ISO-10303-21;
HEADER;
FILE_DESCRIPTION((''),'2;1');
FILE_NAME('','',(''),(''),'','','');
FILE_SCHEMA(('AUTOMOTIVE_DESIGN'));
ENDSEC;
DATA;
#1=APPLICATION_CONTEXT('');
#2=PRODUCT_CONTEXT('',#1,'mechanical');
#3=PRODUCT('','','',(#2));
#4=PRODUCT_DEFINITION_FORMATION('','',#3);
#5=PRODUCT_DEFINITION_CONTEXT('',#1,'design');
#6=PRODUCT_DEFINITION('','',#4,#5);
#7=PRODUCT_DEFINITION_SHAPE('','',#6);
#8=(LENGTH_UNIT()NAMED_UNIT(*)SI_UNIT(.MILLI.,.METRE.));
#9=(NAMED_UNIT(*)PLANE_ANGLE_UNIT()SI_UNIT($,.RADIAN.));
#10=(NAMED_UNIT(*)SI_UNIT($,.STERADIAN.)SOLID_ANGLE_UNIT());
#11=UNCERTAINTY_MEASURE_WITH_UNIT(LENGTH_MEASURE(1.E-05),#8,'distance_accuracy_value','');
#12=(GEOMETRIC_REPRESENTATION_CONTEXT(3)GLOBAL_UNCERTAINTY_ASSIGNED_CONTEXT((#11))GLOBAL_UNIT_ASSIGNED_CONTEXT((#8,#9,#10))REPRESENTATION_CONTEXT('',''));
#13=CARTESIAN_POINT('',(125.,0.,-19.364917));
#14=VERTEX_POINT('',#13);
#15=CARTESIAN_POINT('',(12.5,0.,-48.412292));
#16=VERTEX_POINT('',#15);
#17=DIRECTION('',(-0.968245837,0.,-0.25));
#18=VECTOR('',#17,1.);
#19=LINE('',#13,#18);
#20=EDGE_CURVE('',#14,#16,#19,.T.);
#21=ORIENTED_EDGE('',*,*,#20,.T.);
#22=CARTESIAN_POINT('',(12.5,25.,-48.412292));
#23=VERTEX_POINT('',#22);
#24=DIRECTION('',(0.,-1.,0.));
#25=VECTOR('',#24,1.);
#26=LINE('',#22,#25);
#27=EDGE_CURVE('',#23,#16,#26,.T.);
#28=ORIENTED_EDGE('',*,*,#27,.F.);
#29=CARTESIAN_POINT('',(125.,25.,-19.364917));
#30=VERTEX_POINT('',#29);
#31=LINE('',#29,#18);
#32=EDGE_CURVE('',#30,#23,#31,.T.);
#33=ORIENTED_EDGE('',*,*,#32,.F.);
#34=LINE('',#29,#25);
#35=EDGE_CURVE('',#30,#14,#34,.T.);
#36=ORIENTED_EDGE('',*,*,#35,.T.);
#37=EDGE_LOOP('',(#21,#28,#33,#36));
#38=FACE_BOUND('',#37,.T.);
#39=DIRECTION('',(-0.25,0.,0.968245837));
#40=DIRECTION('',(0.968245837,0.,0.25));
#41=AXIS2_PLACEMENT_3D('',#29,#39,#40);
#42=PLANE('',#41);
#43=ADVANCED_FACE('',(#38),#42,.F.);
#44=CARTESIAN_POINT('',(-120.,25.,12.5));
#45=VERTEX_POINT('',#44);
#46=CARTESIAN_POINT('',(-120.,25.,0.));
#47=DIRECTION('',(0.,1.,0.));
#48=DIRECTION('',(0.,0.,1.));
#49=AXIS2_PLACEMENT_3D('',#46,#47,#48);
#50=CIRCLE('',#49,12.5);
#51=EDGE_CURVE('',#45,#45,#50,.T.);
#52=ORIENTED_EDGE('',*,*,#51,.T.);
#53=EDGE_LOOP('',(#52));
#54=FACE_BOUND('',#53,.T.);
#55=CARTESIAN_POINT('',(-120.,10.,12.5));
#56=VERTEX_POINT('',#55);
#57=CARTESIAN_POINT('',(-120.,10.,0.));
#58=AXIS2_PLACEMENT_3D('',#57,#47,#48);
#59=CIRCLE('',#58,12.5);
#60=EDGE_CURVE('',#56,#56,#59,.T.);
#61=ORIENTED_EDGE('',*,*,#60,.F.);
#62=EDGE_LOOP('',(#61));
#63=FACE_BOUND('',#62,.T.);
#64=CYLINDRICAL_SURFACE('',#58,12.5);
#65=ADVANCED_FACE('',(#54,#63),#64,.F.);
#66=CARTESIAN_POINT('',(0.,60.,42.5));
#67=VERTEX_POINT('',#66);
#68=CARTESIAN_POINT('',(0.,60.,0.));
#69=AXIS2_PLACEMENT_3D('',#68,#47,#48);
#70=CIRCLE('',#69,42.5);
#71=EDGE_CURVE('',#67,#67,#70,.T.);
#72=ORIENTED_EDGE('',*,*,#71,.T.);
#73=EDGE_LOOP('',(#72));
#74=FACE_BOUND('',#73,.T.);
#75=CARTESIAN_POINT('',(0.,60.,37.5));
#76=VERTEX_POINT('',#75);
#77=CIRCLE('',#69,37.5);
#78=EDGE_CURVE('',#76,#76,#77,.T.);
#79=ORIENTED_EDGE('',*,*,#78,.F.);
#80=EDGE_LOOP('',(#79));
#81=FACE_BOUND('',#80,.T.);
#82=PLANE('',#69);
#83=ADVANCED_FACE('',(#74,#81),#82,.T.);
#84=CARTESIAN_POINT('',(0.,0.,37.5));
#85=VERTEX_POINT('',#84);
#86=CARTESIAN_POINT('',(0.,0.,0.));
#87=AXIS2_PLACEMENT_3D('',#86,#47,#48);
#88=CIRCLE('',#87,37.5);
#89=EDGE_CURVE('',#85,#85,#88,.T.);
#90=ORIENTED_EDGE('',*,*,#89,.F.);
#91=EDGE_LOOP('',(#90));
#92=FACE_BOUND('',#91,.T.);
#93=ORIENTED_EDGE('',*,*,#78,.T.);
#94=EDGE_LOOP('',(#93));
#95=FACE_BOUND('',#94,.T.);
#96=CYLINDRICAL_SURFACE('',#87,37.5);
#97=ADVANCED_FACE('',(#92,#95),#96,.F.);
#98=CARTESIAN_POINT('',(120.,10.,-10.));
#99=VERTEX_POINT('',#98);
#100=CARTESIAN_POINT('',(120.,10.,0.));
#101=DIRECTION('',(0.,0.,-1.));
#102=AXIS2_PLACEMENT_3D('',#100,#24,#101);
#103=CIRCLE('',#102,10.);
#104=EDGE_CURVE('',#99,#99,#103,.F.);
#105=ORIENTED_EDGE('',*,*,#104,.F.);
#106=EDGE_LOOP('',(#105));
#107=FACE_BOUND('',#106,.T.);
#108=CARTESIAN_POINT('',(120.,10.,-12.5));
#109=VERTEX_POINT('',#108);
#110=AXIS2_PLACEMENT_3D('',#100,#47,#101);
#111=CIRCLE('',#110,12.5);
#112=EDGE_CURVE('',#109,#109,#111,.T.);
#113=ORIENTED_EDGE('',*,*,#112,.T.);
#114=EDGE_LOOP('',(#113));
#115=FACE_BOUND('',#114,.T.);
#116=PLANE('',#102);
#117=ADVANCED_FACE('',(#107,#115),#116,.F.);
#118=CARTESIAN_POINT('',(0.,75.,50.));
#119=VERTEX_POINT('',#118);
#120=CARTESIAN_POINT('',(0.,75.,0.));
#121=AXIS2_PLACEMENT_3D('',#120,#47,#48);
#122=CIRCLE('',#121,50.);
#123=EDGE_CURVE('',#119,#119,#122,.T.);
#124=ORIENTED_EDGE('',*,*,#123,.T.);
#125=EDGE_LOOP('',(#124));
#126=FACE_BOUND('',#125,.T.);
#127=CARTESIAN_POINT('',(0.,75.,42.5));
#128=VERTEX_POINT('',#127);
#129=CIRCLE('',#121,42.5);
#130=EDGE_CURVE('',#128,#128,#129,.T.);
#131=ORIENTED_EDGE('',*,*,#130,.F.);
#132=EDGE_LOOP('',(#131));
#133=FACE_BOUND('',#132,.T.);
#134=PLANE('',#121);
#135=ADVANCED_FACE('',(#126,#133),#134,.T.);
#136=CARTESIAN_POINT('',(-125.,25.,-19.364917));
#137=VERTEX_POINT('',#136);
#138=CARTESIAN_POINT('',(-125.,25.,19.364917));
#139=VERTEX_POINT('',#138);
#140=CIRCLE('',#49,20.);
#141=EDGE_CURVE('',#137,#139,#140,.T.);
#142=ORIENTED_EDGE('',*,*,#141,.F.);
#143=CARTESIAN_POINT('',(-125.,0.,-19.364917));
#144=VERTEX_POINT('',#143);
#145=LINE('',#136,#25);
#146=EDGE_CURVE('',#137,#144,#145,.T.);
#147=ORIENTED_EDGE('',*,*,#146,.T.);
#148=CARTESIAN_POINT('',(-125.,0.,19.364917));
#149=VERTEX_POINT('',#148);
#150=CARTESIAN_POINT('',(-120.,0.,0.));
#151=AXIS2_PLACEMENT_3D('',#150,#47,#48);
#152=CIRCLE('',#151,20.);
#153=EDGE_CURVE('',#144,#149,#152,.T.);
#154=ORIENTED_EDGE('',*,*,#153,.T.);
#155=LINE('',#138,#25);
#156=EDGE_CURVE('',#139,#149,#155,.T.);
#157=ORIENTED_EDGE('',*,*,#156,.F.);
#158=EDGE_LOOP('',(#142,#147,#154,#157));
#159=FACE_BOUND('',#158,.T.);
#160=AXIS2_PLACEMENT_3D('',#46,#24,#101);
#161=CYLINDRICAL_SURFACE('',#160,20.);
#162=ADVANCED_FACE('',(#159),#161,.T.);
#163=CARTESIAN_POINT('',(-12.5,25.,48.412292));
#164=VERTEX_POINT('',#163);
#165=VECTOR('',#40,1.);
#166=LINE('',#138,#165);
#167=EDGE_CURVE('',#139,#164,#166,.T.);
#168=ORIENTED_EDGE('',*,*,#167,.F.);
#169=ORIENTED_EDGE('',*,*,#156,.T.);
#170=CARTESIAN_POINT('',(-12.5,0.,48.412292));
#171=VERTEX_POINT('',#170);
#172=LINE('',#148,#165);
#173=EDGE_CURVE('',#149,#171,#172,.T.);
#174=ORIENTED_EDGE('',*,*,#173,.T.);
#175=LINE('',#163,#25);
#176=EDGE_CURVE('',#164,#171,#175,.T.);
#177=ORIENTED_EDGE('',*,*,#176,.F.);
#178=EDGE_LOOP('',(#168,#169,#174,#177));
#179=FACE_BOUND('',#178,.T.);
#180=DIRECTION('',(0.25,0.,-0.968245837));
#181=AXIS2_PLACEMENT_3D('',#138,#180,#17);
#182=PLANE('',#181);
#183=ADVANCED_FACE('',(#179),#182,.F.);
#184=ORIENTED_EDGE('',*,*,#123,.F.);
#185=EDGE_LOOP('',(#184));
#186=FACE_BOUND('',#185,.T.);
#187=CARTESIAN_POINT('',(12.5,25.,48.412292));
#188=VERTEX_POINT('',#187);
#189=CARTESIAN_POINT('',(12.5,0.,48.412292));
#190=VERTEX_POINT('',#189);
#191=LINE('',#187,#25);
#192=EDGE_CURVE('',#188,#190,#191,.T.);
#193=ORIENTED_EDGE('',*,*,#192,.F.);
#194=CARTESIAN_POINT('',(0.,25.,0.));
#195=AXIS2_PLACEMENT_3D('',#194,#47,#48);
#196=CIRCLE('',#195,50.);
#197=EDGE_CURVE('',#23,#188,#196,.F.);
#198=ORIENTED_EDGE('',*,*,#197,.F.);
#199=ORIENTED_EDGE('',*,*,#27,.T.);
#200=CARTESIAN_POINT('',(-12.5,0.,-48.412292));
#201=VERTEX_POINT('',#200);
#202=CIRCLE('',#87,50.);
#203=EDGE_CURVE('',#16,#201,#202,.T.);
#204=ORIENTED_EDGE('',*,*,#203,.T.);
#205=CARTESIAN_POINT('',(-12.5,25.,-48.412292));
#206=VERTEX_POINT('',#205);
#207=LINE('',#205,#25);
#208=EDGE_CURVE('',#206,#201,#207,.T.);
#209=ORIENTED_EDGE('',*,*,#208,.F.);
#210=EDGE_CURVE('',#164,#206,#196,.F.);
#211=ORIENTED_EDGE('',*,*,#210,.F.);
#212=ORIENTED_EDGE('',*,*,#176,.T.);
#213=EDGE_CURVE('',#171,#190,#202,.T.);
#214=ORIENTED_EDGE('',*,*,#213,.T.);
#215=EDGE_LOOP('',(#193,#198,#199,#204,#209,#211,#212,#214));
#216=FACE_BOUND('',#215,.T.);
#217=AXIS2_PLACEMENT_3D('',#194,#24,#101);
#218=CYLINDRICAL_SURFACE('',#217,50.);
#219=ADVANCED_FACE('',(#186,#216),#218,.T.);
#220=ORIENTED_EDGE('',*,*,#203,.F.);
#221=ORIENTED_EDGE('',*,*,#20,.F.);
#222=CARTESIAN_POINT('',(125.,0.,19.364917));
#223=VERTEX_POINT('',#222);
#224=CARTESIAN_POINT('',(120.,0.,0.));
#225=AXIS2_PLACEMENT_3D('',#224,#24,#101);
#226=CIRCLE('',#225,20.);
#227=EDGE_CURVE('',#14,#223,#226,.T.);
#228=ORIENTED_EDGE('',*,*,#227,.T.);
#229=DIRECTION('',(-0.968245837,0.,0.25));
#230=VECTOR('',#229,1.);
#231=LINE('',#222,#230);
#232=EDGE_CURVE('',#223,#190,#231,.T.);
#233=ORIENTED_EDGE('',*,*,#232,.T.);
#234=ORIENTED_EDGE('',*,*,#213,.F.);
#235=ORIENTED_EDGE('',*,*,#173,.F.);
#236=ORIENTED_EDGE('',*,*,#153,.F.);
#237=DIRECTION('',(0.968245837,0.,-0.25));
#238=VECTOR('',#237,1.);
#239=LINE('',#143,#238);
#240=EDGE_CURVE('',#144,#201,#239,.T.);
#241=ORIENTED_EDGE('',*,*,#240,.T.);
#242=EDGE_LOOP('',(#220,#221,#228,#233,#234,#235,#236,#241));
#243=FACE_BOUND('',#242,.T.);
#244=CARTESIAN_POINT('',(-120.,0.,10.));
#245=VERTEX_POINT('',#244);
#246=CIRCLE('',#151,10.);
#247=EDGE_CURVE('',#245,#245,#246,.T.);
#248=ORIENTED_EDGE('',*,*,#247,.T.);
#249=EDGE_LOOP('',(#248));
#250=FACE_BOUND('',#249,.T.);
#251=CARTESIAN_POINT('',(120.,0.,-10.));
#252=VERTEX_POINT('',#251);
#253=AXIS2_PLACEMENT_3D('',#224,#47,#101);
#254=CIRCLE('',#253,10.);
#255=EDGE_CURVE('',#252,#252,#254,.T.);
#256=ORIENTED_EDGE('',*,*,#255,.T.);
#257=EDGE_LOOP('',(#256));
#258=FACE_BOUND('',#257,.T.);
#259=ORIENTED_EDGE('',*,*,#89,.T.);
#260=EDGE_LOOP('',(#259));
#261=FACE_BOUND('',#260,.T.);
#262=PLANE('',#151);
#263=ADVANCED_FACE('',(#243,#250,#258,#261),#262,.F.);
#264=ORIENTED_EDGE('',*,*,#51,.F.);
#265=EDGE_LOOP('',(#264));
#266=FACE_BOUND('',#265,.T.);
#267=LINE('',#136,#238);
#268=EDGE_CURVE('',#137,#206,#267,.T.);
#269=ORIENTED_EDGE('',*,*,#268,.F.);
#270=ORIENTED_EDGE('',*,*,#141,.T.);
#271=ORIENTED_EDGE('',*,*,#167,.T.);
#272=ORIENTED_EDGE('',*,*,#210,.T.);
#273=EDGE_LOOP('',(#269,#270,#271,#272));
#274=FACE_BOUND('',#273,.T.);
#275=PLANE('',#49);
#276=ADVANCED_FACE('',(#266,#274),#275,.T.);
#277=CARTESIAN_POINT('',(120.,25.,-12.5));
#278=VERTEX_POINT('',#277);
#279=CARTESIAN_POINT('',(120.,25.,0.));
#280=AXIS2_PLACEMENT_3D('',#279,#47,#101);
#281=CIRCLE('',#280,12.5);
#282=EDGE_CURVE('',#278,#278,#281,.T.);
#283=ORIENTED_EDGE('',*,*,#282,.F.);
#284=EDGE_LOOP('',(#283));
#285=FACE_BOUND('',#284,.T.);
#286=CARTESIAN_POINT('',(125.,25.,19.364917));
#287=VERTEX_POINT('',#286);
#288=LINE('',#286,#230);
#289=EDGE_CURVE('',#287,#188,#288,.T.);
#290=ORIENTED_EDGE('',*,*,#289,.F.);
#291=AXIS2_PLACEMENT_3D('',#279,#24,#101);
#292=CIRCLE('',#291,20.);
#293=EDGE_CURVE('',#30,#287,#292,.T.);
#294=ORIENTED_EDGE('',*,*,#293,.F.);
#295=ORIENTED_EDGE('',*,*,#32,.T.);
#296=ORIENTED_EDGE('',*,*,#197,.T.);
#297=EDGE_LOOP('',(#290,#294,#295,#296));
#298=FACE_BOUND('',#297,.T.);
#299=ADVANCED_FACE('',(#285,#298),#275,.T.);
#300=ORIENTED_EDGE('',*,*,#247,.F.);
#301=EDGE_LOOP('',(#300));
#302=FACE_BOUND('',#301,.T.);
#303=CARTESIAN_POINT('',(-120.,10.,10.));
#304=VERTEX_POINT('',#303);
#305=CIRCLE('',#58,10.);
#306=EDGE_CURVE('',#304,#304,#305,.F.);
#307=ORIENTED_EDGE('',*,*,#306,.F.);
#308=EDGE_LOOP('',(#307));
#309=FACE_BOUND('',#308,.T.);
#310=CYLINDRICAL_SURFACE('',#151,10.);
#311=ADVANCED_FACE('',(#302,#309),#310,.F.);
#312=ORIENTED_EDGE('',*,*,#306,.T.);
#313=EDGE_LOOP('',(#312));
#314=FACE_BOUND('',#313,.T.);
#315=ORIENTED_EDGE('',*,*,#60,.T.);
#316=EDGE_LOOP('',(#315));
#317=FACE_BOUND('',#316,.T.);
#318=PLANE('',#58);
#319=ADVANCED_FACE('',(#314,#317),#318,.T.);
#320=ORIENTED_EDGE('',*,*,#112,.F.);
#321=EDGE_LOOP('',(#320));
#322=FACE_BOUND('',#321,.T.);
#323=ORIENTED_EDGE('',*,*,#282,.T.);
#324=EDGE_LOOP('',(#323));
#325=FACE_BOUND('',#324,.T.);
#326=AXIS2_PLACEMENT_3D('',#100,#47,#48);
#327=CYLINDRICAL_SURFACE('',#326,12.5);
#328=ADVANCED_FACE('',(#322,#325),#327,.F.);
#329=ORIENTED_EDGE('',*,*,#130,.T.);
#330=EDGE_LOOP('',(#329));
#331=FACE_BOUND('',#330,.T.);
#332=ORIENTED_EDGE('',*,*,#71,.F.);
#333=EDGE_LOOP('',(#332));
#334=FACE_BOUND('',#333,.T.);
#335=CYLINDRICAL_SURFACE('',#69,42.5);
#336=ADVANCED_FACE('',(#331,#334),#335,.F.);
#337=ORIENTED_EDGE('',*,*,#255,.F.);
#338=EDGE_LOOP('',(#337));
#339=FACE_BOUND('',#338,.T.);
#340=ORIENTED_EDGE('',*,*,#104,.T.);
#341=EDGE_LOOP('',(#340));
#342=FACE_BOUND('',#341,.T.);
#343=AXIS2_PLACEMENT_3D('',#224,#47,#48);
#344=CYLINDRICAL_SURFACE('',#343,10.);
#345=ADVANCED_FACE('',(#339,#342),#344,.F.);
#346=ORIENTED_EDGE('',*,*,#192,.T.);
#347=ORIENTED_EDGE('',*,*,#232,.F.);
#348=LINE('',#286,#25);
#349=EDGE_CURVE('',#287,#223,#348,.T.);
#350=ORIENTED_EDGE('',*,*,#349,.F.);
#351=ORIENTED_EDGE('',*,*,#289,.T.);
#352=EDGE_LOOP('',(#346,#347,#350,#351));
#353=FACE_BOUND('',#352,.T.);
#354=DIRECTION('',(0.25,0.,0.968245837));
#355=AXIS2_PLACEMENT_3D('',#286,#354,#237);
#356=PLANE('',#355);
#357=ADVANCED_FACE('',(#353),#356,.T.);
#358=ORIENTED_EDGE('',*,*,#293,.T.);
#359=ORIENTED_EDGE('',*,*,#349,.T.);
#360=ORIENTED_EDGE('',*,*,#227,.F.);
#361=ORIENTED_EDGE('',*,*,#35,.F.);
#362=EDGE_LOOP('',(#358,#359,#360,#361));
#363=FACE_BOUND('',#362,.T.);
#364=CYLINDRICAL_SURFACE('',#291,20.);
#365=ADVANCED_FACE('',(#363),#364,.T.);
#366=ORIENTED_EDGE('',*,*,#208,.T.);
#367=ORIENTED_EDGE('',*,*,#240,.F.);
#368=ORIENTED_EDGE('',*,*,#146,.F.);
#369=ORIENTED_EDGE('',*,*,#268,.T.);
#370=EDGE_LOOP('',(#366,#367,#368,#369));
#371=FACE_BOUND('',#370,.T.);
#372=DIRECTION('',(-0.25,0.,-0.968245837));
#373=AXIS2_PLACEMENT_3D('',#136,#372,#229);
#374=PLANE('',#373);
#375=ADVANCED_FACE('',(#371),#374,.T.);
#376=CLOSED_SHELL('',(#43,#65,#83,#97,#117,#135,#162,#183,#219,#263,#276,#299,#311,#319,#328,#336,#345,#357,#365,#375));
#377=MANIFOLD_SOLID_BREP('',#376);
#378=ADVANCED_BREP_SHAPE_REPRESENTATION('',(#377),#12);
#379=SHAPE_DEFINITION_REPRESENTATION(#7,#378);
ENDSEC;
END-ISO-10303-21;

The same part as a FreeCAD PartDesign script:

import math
import FreeCAD as App
import Part
import Sketcher
from FreeCAD import Vector

doc = App.newDocument("Part")
body = doc.addObject("PartDesign::Body", "Body")

sketch1 = body.newObject("Sketcher::SketchObject", "Sketch")
sketch1.AttachmentSupport = (doc.getObject("XZ_Plane"), [""])
sketch1.MapMode = "FlatFace"
sketch1.addGeometry(Part.LineSegment(Vector(-12, -48, 0), Vector(-125, -19, 0)), False)
sketch1.addGeometry(Part.ArcOfCircle(Part.Circle(Vector(-120, 0, 0), Vector(0, 0, 1), 20), math.radians(104), math.radians(256)), False)
sketch1.addGeometry(Part.LineSegment(Vector(-125, 19, 0), Vector(-12, 48, 0)), False)
sketch1.addGeometry(Part.ArcOfCircle(Part.Circle(Vector(0, 0, 0), Vector(0, 0, 1), 50), math.radians(76), math.radians(104)), False)
sketch1.addGeometry(Part.LineSegment(Vector(12, 48, 0), Vector(125, 19, 0)), False)
sketch1.addGeometry(Part.ArcOfCircle(Part.Circle(Vector(120, 0, 0), Vector(0, 0, 1), 20), math.radians(-76), math.radians(76)), False)
sketch1.addGeometry(Part.LineSegment(Vector(125, -19, 0), Vector(12, -48, 0)), False)
sketch1.addGeometry(Part.ArcOfCircle(Part.Circle(Vector(0, 0, 0), Vector(0, 0, 1), 50), math.radians(-104), math.radians(-76)), False)
sketch1.addConstraint(Sketcher.Constraint("Tangent", 0, 2, 1, 2))
sketch1.addConstraint(Sketcher.Constraint("Tangent", 1, 1, 2, 1))
sketch1.addConstraint(Sketcher.Constraint("Tangent", 2, 2, 3, 2))
sketch1.addConstraint(Sketcher.Constraint("Tangent", 3, 1, 4, 1))
sketch1.addConstraint(Sketcher.Constraint("Tangent", 4, 2, 5, 2))
sketch1.addConstraint(Sketcher.Constraint("Tangent", 5, 1, 6, 1))
sketch1.addConstraint(Sketcher.Constraint("Tangent", 6, 2, 7, 2))
sketch1.addConstraint(Sketcher.Constraint("Tangent", 7, 1, 0, 1))
sketch1.addConstraint(Sketcher.Constraint("Coincident", 3, 3, -1, 1))
sketch1.addConstraint(Sketcher.Constraint("Coincident", 7, 3, -1, 1))
sketch1.addConstraint(Sketcher.Constraint("Equal", 1, 5))
sketch1.addConstraint(Sketcher.Constraint("Equal", 3, 7))
sketch1.addConstraint(Sketcher.Constraint("Symmetric", 1, 3, 5, 3, -1, 1))
sketch1.addConstraint(Sketcher.Constraint("PointOnObject", 1, 3, -1))
sketch1.addConstraint(Sketcher.Constraint("Radius", 1, 20.0))
sketch1.addConstraint(Sketcher.Constraint("Radius", 3, 50.0))
sketch1.addConstraint(Sketcher.Constraint("DistanceX", 1, 3, -1, 1, 120.0))
pad1 = body.newObject("PartDesign::Pad", "Pad")
pad1.Profile = sketch1
pad1.Length = 25
pad1.Reversed = True

sketch2 = body.newObject("Sketcher::SketchObject", "Sketch001")
sketch2.AttachmentSupport = (doc.getObject("XZ_Plane"), [""])
sketch2.MapMode = "FlatFace"
sketch2.AttachmentOffset = App.Placement(Vector(0, 0, -25), App.Rotation())
sketch2.addGeometry(Part.Circle(Vector(-120, 0, 0), Vector(0, 0, 1), 10), False)
sketch2.addGeometry(Part.Circle(Vector(120, 0, 0), Vector(0, 0, 1), 10), False)
sketch2.addConstraint(Sketcher.Constraint("Equal", 0, 1))
sketch2.addConstraint(Sketcher.Constraint("Symmetric", 0, 3, 1, 3, -1, 1))
sketch2.addConstraint(Sketcher.Constraint("PointOnObject", 0, 3, -1))
sketch2.addConstraint(Sketcher.Constraint("Diameter", 0, 20.0))
sketch2.addConstraint(Sketcher.Constraint("DistanceX", 0, 3, -1, 1, 120.0))
pocket1 = body.newObject("PartDesign::Pocket", "Pocket")
pocket1.Profile = sketch2
pocket1.Length = 25
pocket1.Reversed = True

sketch3 = body.newObject("Sketcher::SketchObject", "Sketch002")
sketch3.AttachmentSupport = (doc.getObject("XZ_Plane"), [""])
sketch3.MapMode = "FlatFace"
sketch3.AttachmentOffset = App.Placement(Vector(0, 0, -25), App.Rotation())
sketch3.addGeometry(Part.Circle(Vector(-120, 0, 0), Vector(0, 0, 1), 12), False)
sketch3.addGeometry(Part.Circle(Vector(120, 0, 0), Vector(0, 0, 1), 12), False)
sketch3.addConstraint(Sketcher.Constraint("Equal", 0, 1))
sketch3.addConstraint(Sketcher.Constraint("Symmetric", 0, 3, 1, 3, -1, 1))
sketch3.addConstraint(Sketcher.Constraint("PointOnObject", 0, 3, -1))
sketch3.addConstraint(Sketcher.Constraint("Diameter", 0, 25.0))
sketch3.addConstraint(Sketcher.Constraint("DistanceX", 0, 3, -1, 1, 120.0))
pocket2 = body.newObject("PartDesign::Pocket", "Pocket001")
pocket2.Profile = sketch3
pocket2.Length = 15
pocket2.Reversed = True

sketch4 = body.newObject("Sketcher::SketchObject", "Sketch003")
sketch4.AttachmentSupport = (doc.getObject("XZ_Plane"), [""])
sketch4.MapMode = "FlatFace"
sketch4.addGeometry(Part.Circle(Vector(0, 0, 0), Vector(0, 0, 1), 50), False)
sketch4.addConstraint(Sketcher.Constraint("Coincident", 0, 3, -1, 1))
sketch4.addConstraint(Sketcher.Constraint("Diameter", 0, 100.0))
pad2 = body.newObject("PartDesign::Pad", "Pad001")
pad2.Profile = sketch4
pad2.Length = 75
pad2.Reversed = True

sketch5 = body.newObject("Sketcher::SketchObject", "Sketch004")
sketch5.AttachmentSupport = (doc.getObject("XZ_Plane"), [""])
sketch5.MapMode = "FlatFace"
sketch5.AttachmentOffset = App.Placement(Vector(0, 0, -75), App.Rotation())
sketch5.addGeometry(Part.Circle(Vector(0, 0, 0), Vector(0, 0, 1), 42), False)
sketch5.addConstraint(Sketcher.Constraint("Coincident", 0, 3, -1, 1))
sketch5.addConstraint(Sketcher.Constraint("Diameter", 0, 85.0))
pocket3 = body.newObject("PartDesign::Pocket", "Pocket002")
pocket3.Profile = sketch5
pocket3.Length = 15
pocket3.Reversed = True

sketch6 = body.newObject("Sketcher::SketchObject", "Sketch005")
sketch6.AttachmentSupport = (doc.getObject("XZ_Plane"), [""])
sketch6.MapMode = "FlatFace"
sketch6.AttachmentOffset = App.Placement(Vector(0, 0, -60), App.Rotation())
sketch6.addGeometry(Part.Circle(Vector(0, 0, 0), Vector(0, 0, 1), 38), False)
sketch6.addConstraint(Sketcher.Constraint("Coincident", 0, 3, -1, 1))
sketch6.addConstraint(Sketcher.Constraint("Diameter", 0, 75.0))
pocket4 = body.newObject("PartDesign::Pocket", "Pocket003")
pocket4.Profile = sketch6
pocket4.Length = 60
pocket4.Reversed = True

doc.recompute()
